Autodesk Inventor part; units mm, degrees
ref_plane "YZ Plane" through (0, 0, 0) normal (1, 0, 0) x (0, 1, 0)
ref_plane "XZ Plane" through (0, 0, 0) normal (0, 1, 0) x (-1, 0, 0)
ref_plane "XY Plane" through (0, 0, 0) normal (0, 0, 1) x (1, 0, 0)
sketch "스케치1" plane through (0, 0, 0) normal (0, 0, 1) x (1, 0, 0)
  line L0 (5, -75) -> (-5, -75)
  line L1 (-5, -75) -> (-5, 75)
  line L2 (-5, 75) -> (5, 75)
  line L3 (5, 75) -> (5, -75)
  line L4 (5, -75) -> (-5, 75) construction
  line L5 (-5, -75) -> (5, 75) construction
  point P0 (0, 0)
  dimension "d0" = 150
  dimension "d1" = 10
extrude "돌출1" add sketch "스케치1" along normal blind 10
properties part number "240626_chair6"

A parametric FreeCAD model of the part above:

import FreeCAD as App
import Part
import Sketcher
from FreeCAD import Vector

doc = App.newDocument("Part")
params = doc.addObject("Spreadsheet::Sheet", "Params")
for row, (alias, value) in enumerate([
    ("sketch1_width", "10 mm"),
    ("sketch1_height", "150 mm"),
    ("pad1_length", "10 mm"),
], start=1):
    params.set(f"A{row}", alias)
    params.set(f"B{row}", "=" + value)
    params.setAlias(f"B{row}", alias)

body = doc.addObject("PartDesign::Body", "Body")

# Sketch on XY plane
sketch1 = body.newObject("Sketcher::SketchObject", "Sketch")
sketch1.AttachmentSupport = (doc.getObject("XY_Plane"), [""])
sketch1.MapMode = "FlatFace"
sketch1.addGeometry([
    Part.LineSegment(Vector(-5, -75, 0), Vector(5, -75, 0)),
    Part.LineSegment(Vector(5, -75, 0), Vector(5, 75, 0)),
    Part.LineSegment(Vector(5, 75, 0), Vector(-5, 75, 0)),
    Part.LineSegment(Vector(-5, 75, 0), Vector(-5, -75, 0)),
], False)
sketch1.addConstraint([
    Sketcher.Constraint("Coincident", 0, 2, 1, 1),
    Sketcher.Constraint("Coincident", 1, 2, 2, 1),
    Sketcher.Constraint("Coincident", 2, 2, 3, 1),
    Sketcher.Constraint("Coincident", 3, 2, 0, 1),
    Sketcher.Constraint("Horizontal", 0),
    Sketcher.Constraint("Vertical", 1),
    Sketcher.Constraint("Horizontal", 2),
    Sketcher.Constraint("Vertical", 3),
    Sketcher.Constraint("Symmetric", 0, 2, 2, 2, -1, 1),
    Sketcher.Constraint("DistanceX", 0, 1, 0, 2, 10.0),
    Sketcher.Constraint("DistanceY", 1, 1, 1, 2, 150.0),
])
sketch1.setExpression("Constraints[9]", "Params.sketch1_width")
sketch1.setExpression("Constraints[10]", "Params.sketch1_height")
pad1 = body.newObject("PartDesign::Pad", "Pad")
pad1.Profile = sketch1
pad1.setExpression("Length", "Params.pad1_length")

doc.recompute()
